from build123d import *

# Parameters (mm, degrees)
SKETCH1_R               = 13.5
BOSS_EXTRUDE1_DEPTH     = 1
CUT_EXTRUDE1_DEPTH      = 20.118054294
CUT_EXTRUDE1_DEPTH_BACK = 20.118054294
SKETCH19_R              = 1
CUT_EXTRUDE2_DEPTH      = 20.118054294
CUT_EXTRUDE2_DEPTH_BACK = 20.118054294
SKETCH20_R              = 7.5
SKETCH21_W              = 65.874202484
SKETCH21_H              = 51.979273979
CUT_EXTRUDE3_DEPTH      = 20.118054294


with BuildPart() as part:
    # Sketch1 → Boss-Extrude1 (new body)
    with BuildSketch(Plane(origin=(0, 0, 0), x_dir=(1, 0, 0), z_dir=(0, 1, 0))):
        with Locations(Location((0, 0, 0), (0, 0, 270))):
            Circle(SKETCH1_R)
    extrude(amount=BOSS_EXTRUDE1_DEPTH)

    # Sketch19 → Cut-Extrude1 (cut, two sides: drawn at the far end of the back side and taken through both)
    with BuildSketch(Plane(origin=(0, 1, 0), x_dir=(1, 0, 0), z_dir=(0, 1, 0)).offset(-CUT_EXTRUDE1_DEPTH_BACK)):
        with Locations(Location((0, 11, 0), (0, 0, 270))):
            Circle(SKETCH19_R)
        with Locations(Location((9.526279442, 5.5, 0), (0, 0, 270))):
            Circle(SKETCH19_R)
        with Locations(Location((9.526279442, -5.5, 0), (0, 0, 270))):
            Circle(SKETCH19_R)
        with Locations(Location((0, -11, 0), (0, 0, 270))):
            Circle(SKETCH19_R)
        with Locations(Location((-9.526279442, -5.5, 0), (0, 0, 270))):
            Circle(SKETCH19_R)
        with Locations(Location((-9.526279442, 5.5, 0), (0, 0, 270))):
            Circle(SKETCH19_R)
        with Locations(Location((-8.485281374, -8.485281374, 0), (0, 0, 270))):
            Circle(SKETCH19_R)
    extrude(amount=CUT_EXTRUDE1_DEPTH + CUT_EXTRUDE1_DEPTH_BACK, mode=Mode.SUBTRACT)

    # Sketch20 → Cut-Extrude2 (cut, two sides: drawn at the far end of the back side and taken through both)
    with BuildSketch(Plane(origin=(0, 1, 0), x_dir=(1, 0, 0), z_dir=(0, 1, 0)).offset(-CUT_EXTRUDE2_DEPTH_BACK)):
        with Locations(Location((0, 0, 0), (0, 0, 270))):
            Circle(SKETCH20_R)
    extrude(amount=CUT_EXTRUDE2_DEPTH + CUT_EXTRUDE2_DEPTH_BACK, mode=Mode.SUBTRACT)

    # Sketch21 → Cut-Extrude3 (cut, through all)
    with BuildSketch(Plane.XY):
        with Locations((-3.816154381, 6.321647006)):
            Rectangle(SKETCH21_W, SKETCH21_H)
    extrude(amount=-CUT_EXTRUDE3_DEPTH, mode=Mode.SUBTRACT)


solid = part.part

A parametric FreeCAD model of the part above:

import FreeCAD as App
import Part
import Sketcher
from FreeCAD import Vector


def add_polygon(sketch, points):
    """Adds a closed chain of lines whose ends are joined by coincident constraints."""
    first, n = sketch.GeometryCount, len(points)
    for a, b in zip(points, points[1:] + points[:1]):
        sketch.addGeometry(Part.LineSegment(App.Vector(*a, 0), App.Vector(*b, 0)), False)
    for i in range(n):
        sketch.addConstraint(Sketcher.Constraint("Coincident", first + i, 2, first + (i + 1) % n, 1))

doc = App.newDocument("Part")
body = doc.addObject("PartDesign::Body", "Body")

sketch1 = doc.addObject("Sketcher::SketchObject", "Sketch")
body.addObject(sketch1)
sketch1.AttachmentSupport = (doc.XZ_Plane, [""])
sketch1.MapMode = "FlatFace"
sketch1.addGeometry(Part.Circle(Vector(0, 0, 0), Vector(0, 0, 1), 13.5), False)
sketch1.addConstraint([
    Sketcher.Constraint("Coincident", 0, 3, -1, 1),
    Sketcher.Constraint("Diameter", 0, 27.0),
])
pad1 = doc.addObject("PartDesign::Pad", "Pad")
body.addObject(pad1)
pad1.Profile = sketch1
pad1.Length = 1
pad1.Reversed = True

sketch2 = doc.addObject("Sketcher::SketchObject", "Sketch001")
body.addObject(sketch2)
sketch2.AttachmentSupport = (doc.XZ_Plane, [""])
sketch2.MapMode = "FlatFace"
sketch2.AttachmentOffset = App.Placement(Vector(0, 0, -1), App.Rotation())
sketch2.addGeometry([
    Part.Circle(Vector(0, -11, 0), Vector(0, 0, 1), 1),
    Part.Circle(Vector(9.526279, -5.5, 0), Vector(0, 0, 1), 1),
    Part.Circle(Vector(9.526279, 5.5, 0), Vector(0, 0, 1), 1),
    Part.Circle(Vector(0, 11, 0), Vector(0, 0, 1), 1),
    Part.Circle(Vector(-9.526279, 5.5, 0), Vector(0, 0, 1), 1),
    Part.Circle(Vector(-9.526279, -5.5, 0), Vector(0, 0, 1), 1),
    Part.Circle(Vector(-8.485281, 8.485281, 0), Vector(0, 0, 1), 1),
], False)
sketch2.addConstraint([
    Sketcher.Constraint("Equal", 0, 1),
    Sketcher.Constraint("Equal", 1, 2),
    Sketcher.Constraint("Equal", 2, 3),
    Sketcher.Constraint("Equal", 3, 4),
    Sketcher.Constraint("Equal", 4, 5),
    Sketcher.Constraint("Equal", 5, 6),
    Sketcher.Constraint("Symmetric", 0, 3, 3, 3, -1, 1),
    Sketcher.Constraint("Symmetric", 1, 3, 4, 3, -1, 1),
    Sketcher.Constraint("Symmetric", 2, 3, 5, 3, -1, 1),
    Sketcher.Constraint("Symmetric", 2, 3, 4, 3, -2),
    Sketcher.Constraint("PointOnObject", 0, 3, -2),
    Sketcher.Constraint("Diameter", 0, 2.0),
    Sketcher.Constraint("DistanceY", 0, 3, -1, 1, 11.0),
    Sketcher.Constraint("DistanceY", 1, 3, 2, 3, 11.0),
    Sketcher.Constraint("DistanceX", 4, 3, 6, 3, 1.040998),
    Sketcher.Constraint("DistanceX", -1, 1, 1, 3, 9.526279),
    Sketcher.Constraint("DistanceY", -1, 1, 6, 3, 8.485281),
])
pocket1 = doc.addObject("PartDesign::Pocket", "Pocket")
body.addObject(pocket1)
pocket1.Profile = sketch2
pocket1.Type = "ThroughAll"
pocket1.Midplane = True

sketch3 = doc.addObject("Sketcher::SketchObject", "Sketch002")
body.addObject(sketch3)
sketch3.AttachmentSupport = (doc.XZ_Plane, [""])
sketch3.MapMode = "FlatFace"
sketch3.AttachmentOffset = App.Placement(Vector(0, 0, -1), App.Rotation())
sketch3.addGeometry(Part.Circle(Vector(0, 0, 0), Vector(0, 0, 1), 7.5), False)
sketch3.addConstraint([
    Sketcher.Constraint("Coincident", 0, 3, -1, 1),
    Sketcher.Constraint("Diameter", 0, 15.0),
])
pocket2 = doc.addObject("PartDesign::Pocket", "Pocket001")
body.addObject(pocket2)
pocket2.Profile = sketch3
pocket2.Type = "ThroughAll"
pocket2.Midplane = True

sketch4 = doc.addObject("Sketcher::SketchObject", "Sketch003")
body.addObject(sketch4)
sketch4.AttachmentSupport = (doc.XY_Plane, [""])
sketch4.MapMode = "FlatFace"
add_polygon(sketch4, [(-36.753256, 32.311284), (-36.753256, -19.66799), (29.120947, -19.66799), (29.120947, 32.311284)])
sketch4.addConstraint([
    Sketcher.Constraint("Vertical", 0),
    Sketcher.Constraint("Horizontal", 1),
    Sketcher.Constraint("Vertical", 2),
    Sketcher.Constraint("Horizontal", 3),
    Sketcher.Constraint("DistanceX", 1, 1, 1, 2, 65.874202),
    Sketcher.Constraint("DistanceY", 0, 2, 0, 1, 51.979274),
    Sketcher.Constraint("DistanceY", 0, 2, -1, 1, 19.66799),
    Sketcher.Constraint("DistanceX", 0, 2, -1, 1, 36.753256),
])
pocket3 = doc.addObject("PartDesign::Pocket", "Pocket002")
body.addObject(pocket3)
pocket3.Profile = sketch4
pocket3.Type = "ThroughAll"

doc.recompute()
